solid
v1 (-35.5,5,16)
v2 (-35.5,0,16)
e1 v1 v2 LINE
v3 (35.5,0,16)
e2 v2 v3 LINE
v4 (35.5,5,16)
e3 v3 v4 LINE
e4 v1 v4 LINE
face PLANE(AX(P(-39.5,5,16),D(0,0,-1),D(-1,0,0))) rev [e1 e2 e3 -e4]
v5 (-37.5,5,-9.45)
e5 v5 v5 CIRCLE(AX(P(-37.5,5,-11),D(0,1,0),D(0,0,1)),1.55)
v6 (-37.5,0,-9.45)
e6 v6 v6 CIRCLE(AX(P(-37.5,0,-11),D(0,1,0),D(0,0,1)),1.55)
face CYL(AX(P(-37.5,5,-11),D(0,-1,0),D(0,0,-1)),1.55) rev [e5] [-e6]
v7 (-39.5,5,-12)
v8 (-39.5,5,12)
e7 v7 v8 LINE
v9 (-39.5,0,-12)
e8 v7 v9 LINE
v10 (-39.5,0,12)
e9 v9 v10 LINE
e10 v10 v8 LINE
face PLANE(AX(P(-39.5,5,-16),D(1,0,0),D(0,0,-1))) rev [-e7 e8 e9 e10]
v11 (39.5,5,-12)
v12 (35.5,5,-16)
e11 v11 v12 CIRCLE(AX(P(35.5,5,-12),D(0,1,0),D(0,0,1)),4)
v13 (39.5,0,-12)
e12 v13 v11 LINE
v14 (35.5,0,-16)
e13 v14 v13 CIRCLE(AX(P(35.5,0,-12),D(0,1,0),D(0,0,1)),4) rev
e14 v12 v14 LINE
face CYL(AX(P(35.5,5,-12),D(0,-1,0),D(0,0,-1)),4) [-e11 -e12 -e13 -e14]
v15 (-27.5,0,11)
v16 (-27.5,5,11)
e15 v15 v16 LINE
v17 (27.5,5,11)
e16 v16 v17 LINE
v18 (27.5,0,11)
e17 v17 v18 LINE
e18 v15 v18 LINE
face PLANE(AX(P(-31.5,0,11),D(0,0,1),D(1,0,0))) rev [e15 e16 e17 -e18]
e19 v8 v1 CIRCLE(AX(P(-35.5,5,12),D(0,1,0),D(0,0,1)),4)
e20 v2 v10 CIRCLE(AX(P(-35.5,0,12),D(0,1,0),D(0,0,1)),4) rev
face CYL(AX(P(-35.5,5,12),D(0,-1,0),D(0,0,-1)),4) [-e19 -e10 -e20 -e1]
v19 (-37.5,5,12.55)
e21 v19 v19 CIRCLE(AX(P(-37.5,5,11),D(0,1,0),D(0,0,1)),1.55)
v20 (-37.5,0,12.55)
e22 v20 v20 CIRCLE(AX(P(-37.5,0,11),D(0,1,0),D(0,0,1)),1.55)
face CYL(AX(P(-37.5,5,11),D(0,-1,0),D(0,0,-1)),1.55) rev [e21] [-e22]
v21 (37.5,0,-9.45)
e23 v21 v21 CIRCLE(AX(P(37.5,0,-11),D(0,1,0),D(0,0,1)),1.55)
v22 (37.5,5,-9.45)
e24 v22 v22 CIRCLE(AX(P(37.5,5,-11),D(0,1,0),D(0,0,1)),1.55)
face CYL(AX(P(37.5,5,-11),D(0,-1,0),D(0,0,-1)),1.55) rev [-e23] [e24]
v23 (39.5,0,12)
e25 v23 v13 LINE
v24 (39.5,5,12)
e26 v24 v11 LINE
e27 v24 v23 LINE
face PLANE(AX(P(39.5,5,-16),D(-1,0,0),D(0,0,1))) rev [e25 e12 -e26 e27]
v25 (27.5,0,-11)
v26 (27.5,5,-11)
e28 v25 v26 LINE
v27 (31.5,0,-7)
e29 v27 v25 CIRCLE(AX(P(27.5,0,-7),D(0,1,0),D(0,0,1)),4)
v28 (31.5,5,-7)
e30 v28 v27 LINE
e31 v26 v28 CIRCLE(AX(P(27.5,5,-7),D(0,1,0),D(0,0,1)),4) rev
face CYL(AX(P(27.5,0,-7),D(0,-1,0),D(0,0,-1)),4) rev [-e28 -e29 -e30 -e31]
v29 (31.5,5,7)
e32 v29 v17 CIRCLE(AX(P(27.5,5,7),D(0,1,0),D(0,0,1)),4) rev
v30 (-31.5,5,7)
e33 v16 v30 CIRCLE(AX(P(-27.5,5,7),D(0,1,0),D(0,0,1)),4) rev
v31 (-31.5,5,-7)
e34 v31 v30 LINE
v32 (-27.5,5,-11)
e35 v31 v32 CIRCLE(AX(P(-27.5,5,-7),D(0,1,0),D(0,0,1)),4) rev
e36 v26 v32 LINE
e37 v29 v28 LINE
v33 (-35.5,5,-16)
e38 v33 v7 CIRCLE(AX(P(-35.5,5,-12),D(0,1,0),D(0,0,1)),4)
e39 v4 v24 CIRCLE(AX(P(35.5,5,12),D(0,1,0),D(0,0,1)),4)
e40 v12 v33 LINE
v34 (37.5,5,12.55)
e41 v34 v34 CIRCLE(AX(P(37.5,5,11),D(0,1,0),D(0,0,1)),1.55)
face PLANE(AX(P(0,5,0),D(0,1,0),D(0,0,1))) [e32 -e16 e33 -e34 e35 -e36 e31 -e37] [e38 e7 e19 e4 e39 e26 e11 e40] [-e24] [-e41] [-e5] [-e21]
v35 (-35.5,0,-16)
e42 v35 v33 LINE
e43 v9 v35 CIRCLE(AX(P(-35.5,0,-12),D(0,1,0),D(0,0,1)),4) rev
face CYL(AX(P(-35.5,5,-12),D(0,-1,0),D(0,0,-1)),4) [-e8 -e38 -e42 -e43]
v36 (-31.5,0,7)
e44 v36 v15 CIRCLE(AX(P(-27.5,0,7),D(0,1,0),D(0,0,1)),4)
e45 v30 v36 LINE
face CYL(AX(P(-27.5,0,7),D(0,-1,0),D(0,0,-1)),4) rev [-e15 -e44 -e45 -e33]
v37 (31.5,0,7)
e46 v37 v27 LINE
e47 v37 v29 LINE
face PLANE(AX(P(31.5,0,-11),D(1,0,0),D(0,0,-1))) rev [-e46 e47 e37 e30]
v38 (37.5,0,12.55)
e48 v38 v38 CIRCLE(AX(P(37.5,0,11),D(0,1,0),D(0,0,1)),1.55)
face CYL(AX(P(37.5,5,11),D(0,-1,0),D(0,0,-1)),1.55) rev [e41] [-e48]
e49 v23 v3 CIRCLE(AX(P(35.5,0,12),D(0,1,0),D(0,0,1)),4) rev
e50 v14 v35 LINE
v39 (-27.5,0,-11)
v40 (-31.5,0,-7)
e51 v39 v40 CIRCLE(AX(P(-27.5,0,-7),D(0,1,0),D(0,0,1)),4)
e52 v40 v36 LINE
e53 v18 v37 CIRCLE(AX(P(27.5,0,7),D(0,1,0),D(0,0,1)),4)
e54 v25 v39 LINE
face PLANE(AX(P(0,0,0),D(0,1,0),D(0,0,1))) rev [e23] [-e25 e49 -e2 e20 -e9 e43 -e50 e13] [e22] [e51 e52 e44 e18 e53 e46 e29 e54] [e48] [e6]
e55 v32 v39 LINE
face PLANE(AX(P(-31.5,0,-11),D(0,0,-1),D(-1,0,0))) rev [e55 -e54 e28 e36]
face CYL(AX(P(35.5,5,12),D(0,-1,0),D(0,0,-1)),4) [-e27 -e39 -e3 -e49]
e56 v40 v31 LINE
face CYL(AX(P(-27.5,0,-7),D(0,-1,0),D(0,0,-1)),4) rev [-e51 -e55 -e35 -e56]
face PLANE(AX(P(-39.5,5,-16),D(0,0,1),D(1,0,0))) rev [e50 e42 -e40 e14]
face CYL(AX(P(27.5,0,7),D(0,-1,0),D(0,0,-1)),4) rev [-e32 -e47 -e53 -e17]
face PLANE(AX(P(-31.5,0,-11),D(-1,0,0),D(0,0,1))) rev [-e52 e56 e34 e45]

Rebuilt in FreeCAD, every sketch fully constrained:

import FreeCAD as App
import Part
import Sketcher
from FreeCAD import Vector
Q = App.Units.Quantity


def edges_at(feature, points):
    """Names of the edges that pass closest to the given points."""
    edges = feature.Shape.Edges
    near = lambda p: min(range(len(edges)), key=lambda i: edges[i].distToShape(Part.Vertex(*p))[0])
    return sorted({f"Edge{near(p) + 1}" for p in points})

doc = App.newDocument("Part")
body = doc.addObject("PartDesign::Body", "Body")

# Sketch on XZ plane
sketch1 = body.newObject("Sketcher::SketchObject", "Sketch")
sketch1.AttachmentSupport = (doc.getObject("XZ_Plane"), [""])
sketch1.MapMode = "FlatFace"
sketch1.addGeometry(Part.LineSegment(Vector(-39.5, -16, 0), Vector(-39.5, 16, 0)), False)
sketch1.addGeometry(Part.LineSegment(Vector(-39.5, 16, 0), Vector(39.5, 16, 0)), False)
sketch1.addGeometry(Part.LineSegment(Vector(39.5, 16, 0), Vector(39.5, -16, 0)), False)
sketch1.addGeometry(Part.LineSegment(Vector(39.5, -16, 0), Vector(-39.5, -16, 0)), False)
sketch1.addGeometry(Part.Circle(Vector(-37.5, 11, 0), Vector(0, 0, 1), 1.6), False)
sketch1.addGeometry(Part.Circle(Vector(37.5, 11, 0), Vector(0, 0, 1), 1.6), False)
sketch1.addGeometry(Part.Circle(Vector(-37.5, -11, 0), Vector(0, 0, 1), 1.6), False)
sketch1.addGeometry(Part.Circle(Vector(37.5, -11, 0), Vector(0, 0, 1), 1.6), False)
sketch1.addConstraint(Sketcher.Constraint("Coincident", 0, 2, 1, 1))
sketch1.addConstraint(Sketcher.Constraint("Coincident", 1, 2, 2, 1))
sketch1.addConstraint(Sketcher.Constraint("Coincident", 2, 2, 3, 1))
sketch1.addConstraint(Sketcher.Constraint("Coincident", 3, 2, 0, 1))
sketch1.addConstraint(Sketcher.Constraint("Vertical", 0))
sketch1.addConstraint(Sketcher.Constraint("Horizontal", 1))
sketch1.addConstraint(Sketcher.Constraint("Vertical", 2))
sketch1.addConstraint(Sketcher.Constraint("Horizontal", 3))
sketch1.addConstraint(Sketcher.Constraint("Equal", 4, 5))
sketch1.addConstraint(Sketcher.Constraint("Equal", 5, 6))
sketch1.addConstraint(Sketcher.Constraint("Equal", 6, 7))
sketch1.addConstraint(Sketcher.Constraint("Symmetric", 5, 3, 6, 3, -1, 1))
sketch1.addConstraint(Sketcher.Constraint("Symmetric", 4, 3, 7, 3, -1, 1))
sketch1.addConstraint(Sketcher.Constraint("Symmetric", 0, 2, 2, 2, -1, 1))
sketch1.addConstraint(Sketcher.Constraint("Symmetric", 4, 3, 5, 3, -2))
sketch1.addConstraint(Sketcher.Constraint("Diameter", 4, Q("3.1 mm")))
sketch1.addConstraint(Sketcher.Constraint("DistanceX", 1, 1, 1, 2, Q("79 mm")))
sketch1.addConstraint(Sketcher.Constraint("DistanceY", 0, 1, 0, 2, Q("32 mm")))
sketch1.addConstraint(Sketcher.Constraint("DistanceY", -1, 1, 4, 3, Q("11 mm")))
sketch1.addConstraint(Sketcher.Constraint("DistanceX", 4, 3, 5, 3, Q("75 mm")))
pad1 = body.newObject("PartDesign::Pad", "Pad")
pad1.Profile = sketch1
pad1.Length = 5
pad1.Reversed = True
doc.recompute()

fillet = body.newObject("PartDesign::Fillet", "Fillet")
fillet.Base = (pad1, edges_at(pad1, [
    (39.5, 2.5, 16),
    (-39.5, 2.5, 16),
    (-39.5, 2.5, -16),
    (39.5, 2.5, -16),
]))
fillet.Radius = 4

# Sketch on XZ plane
sketch2 = body.newObject("Sketcher::SketchObject", "Sketch001")
sketch2.AttachmentSupport = (doc.getObject("XZ_Plane"), [""])
sketch2.MapMode = "FlatFace"
sketch2.AttachmentOffset = App.Placement(Vector(0, 0, -5), App.Rotation())
sketch2.addGeometry(Part.LineSegment(Vector(-32, -11, 0), Vector(-32, 11, 0)), False)
sketch2.addGeometry(Part.LineSegment(Vector(-32, 11, 0), Vector(32, 11, 0)), False)
sketch2.addGeometry(Part.LineSegment(Vector(32, 11, 0), Vector(32, -11, 0)), False)
sketch2.addGeometry(Part.LineSegment(Vector(32, -11, 0), Vector(-32, -11, 0)), False)
sketch2.addConstraint(Sketcher.Constraint("Coincident", 0, 2, 1, 1))
sketch2.addConstraint(Sketcher.Constraint("Coincident", 1, 2, 2, 1))
sketch2.addConstraint(Sketcher.Constraint("Coincident", 2, 2, 3, 1))
sketch2.addConstraint(Sketcher.Constraint("Coincident", 3, 2, 0, 1))
sketch2.addConstraint(Sketcher.Constraint("Vertical", 0))
sketch2.addConstraint(Sketcher.Constraint("Horizontal", 1))
sketch2.addConstraint(Sketcher.Constraint("Vertical", 2))
sketch2.addConstraint(Sketcher.Constraint("Horizontal", 3))
sketch2.addConstraint(Sketcher.Constraint("Symmetric", 0, 2, 2, 2, -1, 1))
sketch2.addConstraint(Sketcher.Constraint("DistanceX", 1, 1, 1, 2, Q("63 mm")))
sketch2.addConstraint(Sketcher.Constraint("DistanceY", 0, 1, 0, 2, Q("22 mm")))
pocket1 = body.newObject("PartDesign::Pocket", "Pocket")
pocket1.Profile = sketch2
pocket1.Type = "ThroughAll"
pocket1.Reversed = True
doc.recompute()

fillet2 = body.newObject("PartDesign::Fillet", "Fillet001")
fillet2.Base = (pocket1, edges_at(pocket1, [
    (31.5, 2.5, -11),
    (31.5, 2.5, 11),
    (-31.5, 2.5, 11),
    (-31.5, 2.5, -11),
]))
fillet2.Radius = 4

doc.recompute()
